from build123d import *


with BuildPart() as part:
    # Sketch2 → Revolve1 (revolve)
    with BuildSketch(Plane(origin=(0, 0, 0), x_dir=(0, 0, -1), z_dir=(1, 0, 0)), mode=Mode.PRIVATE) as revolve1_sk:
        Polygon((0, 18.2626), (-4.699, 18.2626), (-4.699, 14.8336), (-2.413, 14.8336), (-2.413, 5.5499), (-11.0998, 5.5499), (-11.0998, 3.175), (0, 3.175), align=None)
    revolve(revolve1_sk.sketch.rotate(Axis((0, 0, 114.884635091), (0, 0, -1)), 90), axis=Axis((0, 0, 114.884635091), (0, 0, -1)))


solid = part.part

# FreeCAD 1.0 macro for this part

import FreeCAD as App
import Part
import Sketcher

V = App.Vector
Q = App.Units.Quantity

doc = App.newDocument("Part")
body = doc.addObject("PartDesign::Body", "Body")

# Sketch on YZ plane
sketch1 = body.newObject("Sketcher::SketchObject", "Sketch")
sketch1.AttachmentSupport = (doc.getObject("YZ_Plane"), [""])
sketch1.MapMode = "FlatFace"
sketch1.addGeometry([
    Part.LineSegment(V(18.3, 0, 0), V(18.3, 4.7, 0)),  # 0
    Part.LineSegment(V(18.3, 4.7, 0), V(14.8, 4.7, 0)),  # 1
    Part.LineSegment(V(14.8, 4.7, 0), V(14.8, 2.4, 0)),  # 2
    Part.LineSegment(V(14.8, 2.4, 0), V(5.5, 2.4, 0)),  # 3
    Part.LineSegment(V(5.5, 2.4, 0), V(5.5, 11.1, 0)),  # 4
    Part.LineSegment(V(5.5, 11.1, 0), V(3.2, 11.1, 0)),  # 5
    Part.LineSegment(V(3.2, 11.1, 0), V(3.2, 0, 0)),  # 6
    Part.LineSegment(V(3.2, 0, 0), V(18.3, 0, 0)),  # 7
], False)
sketch1.addConstraint([
    Sketcher.Constraint("Coincident", 0, 2, 1, 1),
    Sketcher.Constraint("Coincident", 1, 2, 2, 1),
    Sketcher.Constraint("Coincident", 2, 2, 3, 1),
    Sketcher.Constraint("Coincident", 3, 2, 4, 1),
    Sketcher.Constraint("Coincident", 4, 2, 5, 1),
    Sketcher.Constraint("Coincident", 5, 2, 6, 1),
    Sketcher.Constraint("Coincident", 6, 2, 7, 1),
    Sketcher.Constraint("Coincident", 7, 2, 0, 1),
    Sketcher.Constraint("Vertical", 0),
    Sketcher.Constraint("Horizontal", 1),
    Sketcher.Constraint("Vertical", 2),
    Sketcher.Constraint("Horizontal", 3),
    Sketcher.Constraint("Vertical", 4),
    Sketcher.Constraint("Horizontal", 5),
    Sketcher.Constraint("Vertical", 6),
    Sketcher.Constraint("Horizontal", 7),
    Sketcher.Constraint("PointOnObject", 6, 2, -1),
    Sketcher.Constraint("DistanceY", 2, 2, 2, 1, Q("0.09 in")),
    Sketcher.Constraint("DistanceX", 1, 2, 1, 1, Q("0.135 in")),
    Sketcher.Constraint("DistanceX", 7, 1, 7, 2, Q("0.594 in")),
    Sketcher.Constraint("DistanceY", 0, 1, 0, 2, Q("0.185 in")),
    Sketcher.Constraint("DistanceY", 4, 1, 4, 2, Q("0.342 in")),
    Sketcher.Constraint("DistanceX", 3, 2, 3, 1, Q("0.3655 in")),
    Sketcher.Constraint("DistanceX", -1, 1, 0, 2, Q("0.719 in")),
])
revolution = body.newObject("PartDesign::Revolution", "Revolution")
revolution.Profile = sketch1
revolution.ReferenceAxis = (sketch1, ["V_Axis"])
revolution.Angle = 360

doc.recompute()
